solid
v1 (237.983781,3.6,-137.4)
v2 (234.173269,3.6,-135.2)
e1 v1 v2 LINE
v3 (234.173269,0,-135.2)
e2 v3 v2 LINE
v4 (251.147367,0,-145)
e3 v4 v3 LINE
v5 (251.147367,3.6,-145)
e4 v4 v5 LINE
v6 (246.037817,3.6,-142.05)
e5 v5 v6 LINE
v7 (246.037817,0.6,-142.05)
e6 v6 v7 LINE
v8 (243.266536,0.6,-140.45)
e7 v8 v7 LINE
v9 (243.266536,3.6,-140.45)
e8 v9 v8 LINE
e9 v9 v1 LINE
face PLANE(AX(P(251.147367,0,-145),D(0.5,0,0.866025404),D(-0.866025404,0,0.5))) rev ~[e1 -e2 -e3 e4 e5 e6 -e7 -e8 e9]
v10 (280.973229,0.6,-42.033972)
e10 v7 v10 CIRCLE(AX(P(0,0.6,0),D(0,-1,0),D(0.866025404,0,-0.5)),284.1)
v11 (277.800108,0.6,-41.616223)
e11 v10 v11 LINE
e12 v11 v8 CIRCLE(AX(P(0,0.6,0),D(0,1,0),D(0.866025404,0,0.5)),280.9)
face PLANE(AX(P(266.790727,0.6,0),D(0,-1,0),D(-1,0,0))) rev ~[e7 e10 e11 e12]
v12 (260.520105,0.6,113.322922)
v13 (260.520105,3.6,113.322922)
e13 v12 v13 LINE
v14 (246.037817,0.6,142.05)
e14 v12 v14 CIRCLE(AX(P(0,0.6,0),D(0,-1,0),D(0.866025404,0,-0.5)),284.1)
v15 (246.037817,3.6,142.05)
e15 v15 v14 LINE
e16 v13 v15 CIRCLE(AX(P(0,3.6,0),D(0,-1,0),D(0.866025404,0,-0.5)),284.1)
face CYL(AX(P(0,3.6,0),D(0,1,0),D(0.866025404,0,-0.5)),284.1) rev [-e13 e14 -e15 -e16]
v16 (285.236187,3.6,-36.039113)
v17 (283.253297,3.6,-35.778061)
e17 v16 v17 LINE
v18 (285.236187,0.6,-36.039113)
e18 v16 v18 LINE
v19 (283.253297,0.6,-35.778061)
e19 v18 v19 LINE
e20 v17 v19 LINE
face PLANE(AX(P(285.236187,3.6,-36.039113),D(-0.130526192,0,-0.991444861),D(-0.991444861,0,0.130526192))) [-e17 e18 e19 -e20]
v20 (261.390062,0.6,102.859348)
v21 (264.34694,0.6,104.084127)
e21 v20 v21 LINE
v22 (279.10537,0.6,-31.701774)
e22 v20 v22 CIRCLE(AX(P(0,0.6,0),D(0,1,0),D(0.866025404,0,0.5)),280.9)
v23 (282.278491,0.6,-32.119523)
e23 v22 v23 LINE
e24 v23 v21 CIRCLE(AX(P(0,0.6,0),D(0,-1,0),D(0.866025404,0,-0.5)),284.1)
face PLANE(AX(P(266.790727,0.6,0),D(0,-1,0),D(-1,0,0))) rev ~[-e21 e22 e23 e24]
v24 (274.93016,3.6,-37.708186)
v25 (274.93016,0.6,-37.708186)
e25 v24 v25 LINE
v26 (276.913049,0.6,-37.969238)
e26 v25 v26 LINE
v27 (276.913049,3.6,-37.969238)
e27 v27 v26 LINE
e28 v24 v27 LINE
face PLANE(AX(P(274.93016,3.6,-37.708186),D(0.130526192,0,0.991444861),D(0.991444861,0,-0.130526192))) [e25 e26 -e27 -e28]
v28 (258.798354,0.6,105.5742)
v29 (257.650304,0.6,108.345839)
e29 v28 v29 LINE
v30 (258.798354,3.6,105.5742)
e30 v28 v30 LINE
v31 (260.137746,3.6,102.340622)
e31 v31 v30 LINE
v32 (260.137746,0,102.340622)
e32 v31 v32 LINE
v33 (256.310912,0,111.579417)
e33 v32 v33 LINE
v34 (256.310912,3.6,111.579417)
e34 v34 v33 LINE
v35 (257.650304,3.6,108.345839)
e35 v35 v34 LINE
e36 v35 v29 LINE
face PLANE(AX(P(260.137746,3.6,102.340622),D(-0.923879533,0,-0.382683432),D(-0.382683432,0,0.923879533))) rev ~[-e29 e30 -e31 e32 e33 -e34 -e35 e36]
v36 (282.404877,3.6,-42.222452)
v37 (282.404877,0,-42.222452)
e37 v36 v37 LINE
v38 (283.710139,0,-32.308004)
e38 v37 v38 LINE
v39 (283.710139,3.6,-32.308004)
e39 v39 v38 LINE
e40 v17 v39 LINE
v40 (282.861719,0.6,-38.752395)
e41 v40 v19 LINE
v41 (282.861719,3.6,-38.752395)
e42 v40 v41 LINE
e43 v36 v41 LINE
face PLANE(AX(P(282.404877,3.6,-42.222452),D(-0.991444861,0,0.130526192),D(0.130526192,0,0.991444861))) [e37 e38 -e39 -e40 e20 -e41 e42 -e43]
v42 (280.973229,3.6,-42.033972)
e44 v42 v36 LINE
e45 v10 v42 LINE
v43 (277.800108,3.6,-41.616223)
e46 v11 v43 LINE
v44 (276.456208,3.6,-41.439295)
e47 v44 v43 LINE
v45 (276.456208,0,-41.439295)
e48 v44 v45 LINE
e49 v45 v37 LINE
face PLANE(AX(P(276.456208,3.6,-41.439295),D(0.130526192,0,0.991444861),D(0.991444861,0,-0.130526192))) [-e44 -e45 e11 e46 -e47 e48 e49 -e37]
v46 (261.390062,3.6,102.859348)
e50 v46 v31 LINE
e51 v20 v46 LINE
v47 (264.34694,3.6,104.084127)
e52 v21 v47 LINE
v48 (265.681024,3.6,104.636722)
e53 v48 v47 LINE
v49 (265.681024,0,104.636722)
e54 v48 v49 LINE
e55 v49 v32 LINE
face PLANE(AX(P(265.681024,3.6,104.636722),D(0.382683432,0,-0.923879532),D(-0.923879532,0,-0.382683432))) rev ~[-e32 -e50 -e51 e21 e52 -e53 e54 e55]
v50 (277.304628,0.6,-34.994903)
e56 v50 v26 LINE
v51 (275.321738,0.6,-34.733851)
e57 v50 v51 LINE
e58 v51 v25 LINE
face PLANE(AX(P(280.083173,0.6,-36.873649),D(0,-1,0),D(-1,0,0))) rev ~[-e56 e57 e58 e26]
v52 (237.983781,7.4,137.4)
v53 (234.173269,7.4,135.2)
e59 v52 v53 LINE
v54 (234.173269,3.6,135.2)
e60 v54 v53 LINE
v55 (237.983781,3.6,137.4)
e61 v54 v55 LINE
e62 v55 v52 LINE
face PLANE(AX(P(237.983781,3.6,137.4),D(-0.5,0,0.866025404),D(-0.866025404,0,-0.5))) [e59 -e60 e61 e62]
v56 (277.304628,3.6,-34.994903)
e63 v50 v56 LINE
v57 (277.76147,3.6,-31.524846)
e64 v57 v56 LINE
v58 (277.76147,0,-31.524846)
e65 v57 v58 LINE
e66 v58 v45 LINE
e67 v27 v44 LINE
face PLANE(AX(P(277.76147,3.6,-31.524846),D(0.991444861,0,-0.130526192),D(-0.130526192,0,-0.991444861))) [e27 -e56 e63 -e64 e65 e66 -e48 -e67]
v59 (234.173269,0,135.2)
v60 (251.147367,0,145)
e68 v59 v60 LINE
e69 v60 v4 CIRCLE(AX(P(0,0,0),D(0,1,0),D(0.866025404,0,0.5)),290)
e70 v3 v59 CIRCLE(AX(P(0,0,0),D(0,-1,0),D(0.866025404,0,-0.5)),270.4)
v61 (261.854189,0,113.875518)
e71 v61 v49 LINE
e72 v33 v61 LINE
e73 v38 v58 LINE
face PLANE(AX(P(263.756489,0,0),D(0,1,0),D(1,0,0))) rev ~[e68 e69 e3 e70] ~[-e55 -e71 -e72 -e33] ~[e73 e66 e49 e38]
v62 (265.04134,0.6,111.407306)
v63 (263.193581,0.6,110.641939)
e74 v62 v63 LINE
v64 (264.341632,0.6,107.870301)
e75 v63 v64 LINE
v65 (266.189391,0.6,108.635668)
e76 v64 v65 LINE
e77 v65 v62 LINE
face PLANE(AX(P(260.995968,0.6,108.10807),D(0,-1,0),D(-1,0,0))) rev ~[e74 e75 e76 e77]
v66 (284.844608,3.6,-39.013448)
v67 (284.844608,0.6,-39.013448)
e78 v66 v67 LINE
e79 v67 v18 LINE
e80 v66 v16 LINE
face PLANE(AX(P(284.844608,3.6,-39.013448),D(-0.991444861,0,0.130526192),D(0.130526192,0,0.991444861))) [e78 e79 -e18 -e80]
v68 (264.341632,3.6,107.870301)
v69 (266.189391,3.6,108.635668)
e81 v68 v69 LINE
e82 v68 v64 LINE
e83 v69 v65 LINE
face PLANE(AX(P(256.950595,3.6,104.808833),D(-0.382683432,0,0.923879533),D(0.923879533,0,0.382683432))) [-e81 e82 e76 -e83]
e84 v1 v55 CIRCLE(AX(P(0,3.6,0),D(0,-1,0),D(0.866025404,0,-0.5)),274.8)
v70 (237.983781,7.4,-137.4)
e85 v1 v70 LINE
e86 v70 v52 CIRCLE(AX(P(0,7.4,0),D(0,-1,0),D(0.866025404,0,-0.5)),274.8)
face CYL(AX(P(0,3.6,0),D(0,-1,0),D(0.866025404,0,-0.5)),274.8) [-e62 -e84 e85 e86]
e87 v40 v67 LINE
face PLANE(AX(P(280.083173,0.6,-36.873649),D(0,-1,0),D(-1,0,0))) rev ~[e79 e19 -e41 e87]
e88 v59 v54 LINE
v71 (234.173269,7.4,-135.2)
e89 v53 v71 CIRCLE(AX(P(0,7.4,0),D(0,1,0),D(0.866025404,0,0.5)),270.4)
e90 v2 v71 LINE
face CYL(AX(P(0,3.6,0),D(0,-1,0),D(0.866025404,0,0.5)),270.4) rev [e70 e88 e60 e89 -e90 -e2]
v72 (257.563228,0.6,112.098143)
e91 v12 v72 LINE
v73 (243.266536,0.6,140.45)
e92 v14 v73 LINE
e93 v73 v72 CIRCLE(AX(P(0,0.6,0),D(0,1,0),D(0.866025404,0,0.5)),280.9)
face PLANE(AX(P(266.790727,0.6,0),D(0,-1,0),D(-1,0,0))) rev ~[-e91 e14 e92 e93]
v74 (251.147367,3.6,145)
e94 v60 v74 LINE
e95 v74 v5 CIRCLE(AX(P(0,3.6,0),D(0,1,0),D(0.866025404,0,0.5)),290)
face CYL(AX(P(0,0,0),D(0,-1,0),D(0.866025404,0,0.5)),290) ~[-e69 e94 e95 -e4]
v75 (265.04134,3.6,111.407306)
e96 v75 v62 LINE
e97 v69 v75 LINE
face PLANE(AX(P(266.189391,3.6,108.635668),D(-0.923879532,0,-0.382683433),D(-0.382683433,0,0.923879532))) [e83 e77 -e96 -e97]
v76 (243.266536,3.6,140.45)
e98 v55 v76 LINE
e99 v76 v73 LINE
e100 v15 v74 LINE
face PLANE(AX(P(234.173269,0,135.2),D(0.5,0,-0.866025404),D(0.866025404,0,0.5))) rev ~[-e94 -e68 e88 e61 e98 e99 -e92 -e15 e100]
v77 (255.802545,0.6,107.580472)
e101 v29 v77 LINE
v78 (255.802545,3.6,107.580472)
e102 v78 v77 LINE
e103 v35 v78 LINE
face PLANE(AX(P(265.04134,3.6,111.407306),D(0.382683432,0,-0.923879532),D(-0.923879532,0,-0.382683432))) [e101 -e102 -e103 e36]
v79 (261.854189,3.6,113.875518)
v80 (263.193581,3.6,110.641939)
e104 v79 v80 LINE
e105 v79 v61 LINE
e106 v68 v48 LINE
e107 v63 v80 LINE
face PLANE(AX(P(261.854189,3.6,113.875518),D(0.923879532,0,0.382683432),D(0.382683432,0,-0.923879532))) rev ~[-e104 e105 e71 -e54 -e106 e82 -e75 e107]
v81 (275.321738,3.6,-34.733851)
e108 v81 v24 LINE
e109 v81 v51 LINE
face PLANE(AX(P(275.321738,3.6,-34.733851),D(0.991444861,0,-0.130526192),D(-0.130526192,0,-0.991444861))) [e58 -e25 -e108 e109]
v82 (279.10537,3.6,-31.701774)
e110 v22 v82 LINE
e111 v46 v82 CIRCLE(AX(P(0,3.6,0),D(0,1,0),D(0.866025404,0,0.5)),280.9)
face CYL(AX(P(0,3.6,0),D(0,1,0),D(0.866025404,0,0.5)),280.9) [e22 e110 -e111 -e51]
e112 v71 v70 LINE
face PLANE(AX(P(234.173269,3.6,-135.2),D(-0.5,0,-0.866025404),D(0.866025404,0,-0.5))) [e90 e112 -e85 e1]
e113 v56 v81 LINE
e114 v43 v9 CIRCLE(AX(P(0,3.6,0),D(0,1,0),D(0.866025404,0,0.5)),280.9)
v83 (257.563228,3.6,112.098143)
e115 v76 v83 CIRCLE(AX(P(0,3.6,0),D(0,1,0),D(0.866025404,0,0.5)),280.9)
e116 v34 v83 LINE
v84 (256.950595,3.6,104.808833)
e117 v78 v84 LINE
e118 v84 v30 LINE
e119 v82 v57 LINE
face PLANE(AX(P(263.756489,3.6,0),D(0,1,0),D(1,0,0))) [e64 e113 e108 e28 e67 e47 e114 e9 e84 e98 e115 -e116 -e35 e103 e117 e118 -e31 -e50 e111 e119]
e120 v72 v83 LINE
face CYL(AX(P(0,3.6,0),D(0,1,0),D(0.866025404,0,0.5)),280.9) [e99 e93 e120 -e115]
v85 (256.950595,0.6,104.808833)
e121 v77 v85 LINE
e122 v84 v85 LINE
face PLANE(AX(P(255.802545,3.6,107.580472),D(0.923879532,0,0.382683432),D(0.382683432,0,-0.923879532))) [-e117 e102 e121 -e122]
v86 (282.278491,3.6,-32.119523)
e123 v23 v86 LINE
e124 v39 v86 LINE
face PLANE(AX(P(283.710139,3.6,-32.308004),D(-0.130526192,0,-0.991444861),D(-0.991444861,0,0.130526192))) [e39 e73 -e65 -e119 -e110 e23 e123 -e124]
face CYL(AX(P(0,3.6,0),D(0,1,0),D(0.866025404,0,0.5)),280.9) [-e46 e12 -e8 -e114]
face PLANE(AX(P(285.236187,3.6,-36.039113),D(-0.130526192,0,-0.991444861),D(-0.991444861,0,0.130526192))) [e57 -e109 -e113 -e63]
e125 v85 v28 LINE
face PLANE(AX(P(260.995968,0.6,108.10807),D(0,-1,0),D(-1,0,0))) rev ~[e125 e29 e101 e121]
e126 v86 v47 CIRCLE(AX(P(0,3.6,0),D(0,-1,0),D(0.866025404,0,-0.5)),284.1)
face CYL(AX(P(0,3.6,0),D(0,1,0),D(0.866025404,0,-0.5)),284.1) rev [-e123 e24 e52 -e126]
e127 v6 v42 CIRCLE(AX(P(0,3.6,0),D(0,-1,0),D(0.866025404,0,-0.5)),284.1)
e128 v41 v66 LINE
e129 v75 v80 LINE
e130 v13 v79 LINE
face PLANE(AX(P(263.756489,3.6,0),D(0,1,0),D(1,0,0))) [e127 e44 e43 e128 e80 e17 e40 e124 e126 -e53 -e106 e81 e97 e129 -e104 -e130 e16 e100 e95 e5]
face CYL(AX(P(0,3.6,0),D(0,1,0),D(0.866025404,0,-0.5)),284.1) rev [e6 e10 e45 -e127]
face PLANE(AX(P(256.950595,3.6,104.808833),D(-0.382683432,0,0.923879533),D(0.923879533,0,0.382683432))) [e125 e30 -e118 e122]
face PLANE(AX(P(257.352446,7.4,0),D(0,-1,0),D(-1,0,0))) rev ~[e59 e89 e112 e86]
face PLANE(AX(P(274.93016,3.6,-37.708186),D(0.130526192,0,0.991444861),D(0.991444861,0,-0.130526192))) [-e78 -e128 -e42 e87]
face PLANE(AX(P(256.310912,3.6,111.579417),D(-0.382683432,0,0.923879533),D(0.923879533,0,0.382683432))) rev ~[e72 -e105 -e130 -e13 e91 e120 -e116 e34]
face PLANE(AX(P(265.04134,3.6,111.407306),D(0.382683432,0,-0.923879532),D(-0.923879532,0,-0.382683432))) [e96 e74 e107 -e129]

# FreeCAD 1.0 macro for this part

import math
import FreeCAD as App
import Part
import Sketcher
Q = App.Units.Quantity


def add_polygon(sketch, points):
    """Adds a closed chain of lines whose ends are joined by coincident constraints."""
    first, n = sketch.GeometryCount, len(points)
    for a, b in zip(points, points[1:] + points[:1]):
        sketch.addGeometry(Part.LineSegment(App.Vector(*a, 0), App.Vector(*b, 0)), False)
    for i in range(n):
        sketch.addConstraint(Sketcher.Constraint("Coincident", first + i, 2, first + (i + 1) % n, 1))

doc = App.newDocument("Part")
params = doc.addObject("Spreadsheet::Sheet", "Params")
for row, (alias, value) in enumerate([
    ("sketch1_radius", "290 mm"),
    ("sketch1_radius2", "270.4 mm"),
    ("pad1_length", "3.6 mm"),
    ("sketch2_radius", "280.9 mm"),
    ("sketch2_radius2", "284.1 mm"),
    ("pocket1_length", "3 mm"),
    ("sketch3_length", "6 mm"),
    ("sketch3_length2", "10 mm"),
    ("sketch4_length", "10 mm"),
    ("sketch4_length2", "3 mm"),
    ("pocket3_length", "3 mm"),
    ("sketch5_radius", "270.4 mm"),
    ("sketch5_radius2", "274.8 mm"),
    ("pad2_length", "3.8 mm"),
], start=1):
    params.set(f"A{row}", alias)
    params.set(f"B{row}", "=" + value)
    params.setAlias(f"B{row}", alias)

body = doc.addObject("PartDesign::Body", "Body")

sketch1 = body.newObject("Sketcher::SketchObject", "Sketch")
sketch1.AttachmentSupport = (doc.getObject("XZ_Plane"), [""])
sketch1.MapMode = "FlatFace"
sketch1.addGeometry([
    Part.LineSegment(App.Vector(251, -145, 0), App.Vector(234, -135, 0)),
    Part.ArcOfCircle(Part.Circle(App.Vector(0, 0, 0), App.Vector(0, 0, 1), 270), math.radians(-30), math.radians(30)),
    Part.LineSegment(App.Vector(234, 135, 0), App.Vector(251, 145, 0)),
    Part.ArcOfCircle(Part.Circle(App.Vector(0, 0, 0), App.Vector(0, 0, 1), 290), math.radians(-30), math.radians(30)),
], False)
sketch1.addConstraint([
    Sketcher.Constraint("Coincident", 0, 2, 1, 1),
    Sketcher.Constraint("Coincident", 1, 2, 2, 1),
    Sketcher.Constraint("Coincident", 2, 2, 3, 2),
    Sketcher.Constraint("Coincident", 3, 1, 0, 1),
    Sketcher.Constraint("Coincident", 1, 3, -1, 1),
    Sketcher.Constraint("Coincident", 3, 3, -1, 1),
    Sketcher.Constraint("Vertical", 0, 2, 1, 2),
    Sketcher.Constraint("Vertical", 2, 2, 3, 1),
    Sketcher.Constraint("Radius", 3, 290.0),
    Sketcher.Constraint("Radius", 1, 270.4),
    Sketcher.Constraint("Angle", 0, Q("150 deg")),
    Sketcher.Constraint("DistanceY", -1, 1, 2, 2, 145.0),
])
sketch1.setExpression("Constraints[8]", "Params.sketch1_radius")
sketch1.setExpression("Constraints[9]", "Params.sketch1_radius2")
pad1 = body.newObject("PartDesign::Pad", "Pad")
pad1.Profile = sketch1
pad1.setExpression("Length", "Params.pad1_length")
pad1.Reversed = True

sketch2 = body.newObject("Sketcher::SketchObject", "Sketch001")
sketch2.AttachmentSupport = (doc.getObject("XZ_Plane"), [""])
sketch2.MapMode = "FlatFace"
sketch2.AttachmentOffset = App.Placement(App.Vector(0, 0, -3.6), App.Rotation())
sketch2.addGeometry([
    Part.LineSegment(App.Vector(246, -142.1, 0), App.Vector(243.3, -140.4, 0)),
    Part.ArcOfCircle(Part.Circle(App.Vector(0, 0, 0), App.Vector(0, 0, 1), 280.9), math.radians(-30), math.radians(30)),
    Part.LineSegment(App.Vector(243.3, 140.4, 0), App.Vector(246, 142.1, 0)),
    Part.ArcOfCircle(Part.Circle(App.Vector(0, 0, 0), App.Vector(0, 0, 1), 284.1), math.radians(-30), math.radians(30)),
], False)
sketch2.addConstraint([
    Sketcher.Constraint("Coincident", 0, 2, 1, 1),
    Sketcher.Constraint("Coincident", 1, 2, 2, 1),
    Sketcher.Constraint("Coincident", 2, 2, 3, 2),
    Sketcher.Constraint("Coincident", 3, 1, 0, 1),
    Sketcher.Constraint("Coincident", 1, 3, -1, 1),
    Sketcher.Constraint("Coincident", 3, 3, -1, 1),
    Sketcher.Constraint("Vertical", 0, 2, 1, 2),
    Sketcher.Constraint("Vertical", 2, 2, 3, 1),
    Sketcher.Constraint("Radius", 1, 280.9),
    Sketcher.Constraint("Radius", 3, 284.1),
    Sketcher.Constraint("Angle", 0, Q("150 deg")),
    Sketcher.Constraint("DistanceY", 0, 2, 1, 2, 280.9),
])
sketch2.setExpression("Constraints[8]", "Params.sketch2_radius")
sketch2.setExpression("Constraints[9]", "Params.sketch2_radius2")
pocket1 = body.newObject("PartDesign::Pocket", "Pocket")
pocket1.Profile = sketch2
pocket1.setExpression("Length", "Params.pocket1_length")
pocket1.Reversed = True

sketch3 = body.newObject("Sketcher::SketchObject", "Sketch002")
sketch3.AttachmentSupport = (doc.getObject("XZ_Plane"), [""])
sketch3.MapMode = "FlatFace"
sketch3.AttachmentOffset = App.Placement(App.Vector(0, 0, -3.6), App.Rotation())
add_polygon(sketch3, [(282, -42), (276, -41), (278, -32), (284, -32)])
add_polygon(sketch3, [(256, 112), (262, 114), (266, 105), (260, 102)])
sketch3.addConstraint([
    Sketcher.Constraint("Perpendicular", 0, 1),
    Sketcher.Constraint("Perpendicular", 1, 2),
    Sketcher.Constraint("Perpendicular", 2, 3),
    Sketcher.Constraint("Perpendicular", 4, 5),
    Sketcher.Constraint("Perpendicular", 5, 6),
    Sketcher.Constraint("Perpendicular", 6, 7),
    Sketcher.Constraint("Equal", 2, 4),
    Sketcher.Constraint("Equal", 3, 5),
    Sketcher.Constraint("Distance", 0, 6.0),
    Sketcher.Constraint("Distance", 1, 10.0),
    Sketcher.Constraint("Angle", 0, Q("172.5 deg")),
    Sketcher.Constraint("Angle", 4, Q("22.5 deg")),
    Sketcher.Constraint("DistanceX", -1, 1, 1, 2, 277.76147),
    Sketcher.Constraint("DistanceX", -1, 1, 4, 2, 261.854189),
    Sketcher.Constraint("DistanceY", -1, 1, 6, 2, 102.340622),
    Sketcher.Constraint("DistanceY", 2, 2, 4, 2, 146.183521),
])
sketch3.setExpression("Constraints[16]", "Params.sketch3_length")
sketch3.setExpression("Constraints[17]", "Params.sketch3_length2")
pocket2 = body.newObject("PartDesign::Pocket", "Pocket001")
pocket2.Profile = sketch3
pocket2.Type = "ThroughAll"
pocket2.Reversed = True

sketch4 = body.newObject("Sketcher::SketchObject", "Sketch003")
sketch4.AttachmentSupport = (doc.getObject("XZ_Plane"), [""])
sketch4.MapMode = "FlatFace"
sketch4.AttachmentOffset = App.Placement(App.Vector(0, 0, -3.6), App.Rotation())
add_polygon(sketch4, [(266.2, 108.6), (257, 104.8), (255.8, 107.6), (265, 111.4)])
add_polygon(sketch4, [(284.8, -39), (274.9, -37.7), (275.3, -34.7), (285.2, -36)])
sketch4.addConstraint([
    Sketcher.Constraint("Perpendicular", 0, 1),
    Sketcher.Constraint("Perpendicular", 1, 2),
    Sketcher.Constraint("Perpendicular", 2, 3),
    Sketcher.Constraint("Perpendicular", 4, 5),
    Sketcher.Constraint("Perpendicular", 5, 6),
    Sketcher.Constraint("Perpendicular", 6, 7),
    Sketcher.Constraint("Equal", 2, 4),
    Sketcher.Constraint("Equal", 3, 5),
    Sketcher.Constraint("Distance", 0, 10.0),
    Sketcher.Constraint("Distance", 1, 3.0),
    Sketcher.Constraint("Angle", 0, Q("-157.5 deg")),
    Sketcher.Constraint("Angle", 4, Q("172.5 deg")),
    Sketcher.Constraint("DistanceY", -1, 1, 1, 2, 107.580472),
    Sketcher.Constraint("DistanceX", -1, 1, 2, 2, 265.04134),
    Sketcher.Constraint("DistanceX", -1, 1, 4, 2, 274.93016),
    Sketcher.Constraint("DistanceY", 5, 2, -1, 1, 34.733851),
])
sketch4.setExpression("Constraints[16]", "Params.sketch4_length")
sketch4.setExpression("Constraints[17]", "Params.sketch4_length2")
pocket3 = body.newObject("PartDesign::Pocket", "Pocket002")
pocket3.Profile = sketch4
pocket3.setExpression("Length", "Params.pocket3_length")
pocket3.Reversed = True

sketch5 = body.newObject("Sketcher::SketchObject", "Sketch004")
sketch5.AttachmentSupport = (doc.getObject("XZ_Plane"), [""])
sketch5.MapMode = "FlatFace"
sketch5.AttachmentOffset = App.Placement(App.Vector(0, 0, -3.6), App.Rotation())
sketch5.addGeometry([
    Part.LineSegment(App.Vector(238, -137.4, 0), App.Vector(234.2, -135.2, 0)),
    Part.ArcOfCircle(Part.Circle(App.Vector(0, 0, 0), App.Vector(0, 0, 1), 270.4), math.radians(-30), math.radians(30)),
    Part.LineSegment(App.Vector(234.2, 135.2, 0), App.Vector(238, 137.4, 0)),
    Part.ArcOfCircle(Part.Circle(App.Vector(0, 0, 0), App.Vector(0, 0, 1), 274.8), math.radians(-30), math.radians(30)),
], False)
sketch5.addConstraint([
    Sketcher.Constraint("Coincident", 0, 2, 1, 1),
    Sketcher.Constraint("Coincident", 1, 2, 2, 1),
    Sketcher.Constraint("Coincident", 2, 2, 3, 2),
    Sketcher.Constraint("Coincident", 3, 1, 0, 1),
    Sketcher.Constraint("Coincident", 1, 3, -1, 1),
    Sketcher.Constraint("Coincident", 3, 3, -1, 1),
    Sketcher.Constraint("Vertical", 0, 2, 1, 2),
    Sketcher.Constraint("Vertical", 2, 2, 3, 1),
    Sketcher.Constraint("Radius", 1, 270.4),
    Sketcher.Constraint("Radius", 3, 274.8),
    Sketcher.Constraint("Angle", 0, Q("150 deg")),
    Sketcher.Constraint("DistanceY", 0, 2, -1, 1, 135.2),
])
sketch5.setExpression("Constraints[8]", "Params.sketch5_radius")
sketch5.setExpression("Constraints[9]", "Params.sketch5_radius2")
pad2 = body.newObject("PartDesign::Pad", "Pad001")
pad2.Profile = sketch5
pad2.setExpression("Length", "Params.pad2_length")
pad2.Reversed = True

doc.recompute()
